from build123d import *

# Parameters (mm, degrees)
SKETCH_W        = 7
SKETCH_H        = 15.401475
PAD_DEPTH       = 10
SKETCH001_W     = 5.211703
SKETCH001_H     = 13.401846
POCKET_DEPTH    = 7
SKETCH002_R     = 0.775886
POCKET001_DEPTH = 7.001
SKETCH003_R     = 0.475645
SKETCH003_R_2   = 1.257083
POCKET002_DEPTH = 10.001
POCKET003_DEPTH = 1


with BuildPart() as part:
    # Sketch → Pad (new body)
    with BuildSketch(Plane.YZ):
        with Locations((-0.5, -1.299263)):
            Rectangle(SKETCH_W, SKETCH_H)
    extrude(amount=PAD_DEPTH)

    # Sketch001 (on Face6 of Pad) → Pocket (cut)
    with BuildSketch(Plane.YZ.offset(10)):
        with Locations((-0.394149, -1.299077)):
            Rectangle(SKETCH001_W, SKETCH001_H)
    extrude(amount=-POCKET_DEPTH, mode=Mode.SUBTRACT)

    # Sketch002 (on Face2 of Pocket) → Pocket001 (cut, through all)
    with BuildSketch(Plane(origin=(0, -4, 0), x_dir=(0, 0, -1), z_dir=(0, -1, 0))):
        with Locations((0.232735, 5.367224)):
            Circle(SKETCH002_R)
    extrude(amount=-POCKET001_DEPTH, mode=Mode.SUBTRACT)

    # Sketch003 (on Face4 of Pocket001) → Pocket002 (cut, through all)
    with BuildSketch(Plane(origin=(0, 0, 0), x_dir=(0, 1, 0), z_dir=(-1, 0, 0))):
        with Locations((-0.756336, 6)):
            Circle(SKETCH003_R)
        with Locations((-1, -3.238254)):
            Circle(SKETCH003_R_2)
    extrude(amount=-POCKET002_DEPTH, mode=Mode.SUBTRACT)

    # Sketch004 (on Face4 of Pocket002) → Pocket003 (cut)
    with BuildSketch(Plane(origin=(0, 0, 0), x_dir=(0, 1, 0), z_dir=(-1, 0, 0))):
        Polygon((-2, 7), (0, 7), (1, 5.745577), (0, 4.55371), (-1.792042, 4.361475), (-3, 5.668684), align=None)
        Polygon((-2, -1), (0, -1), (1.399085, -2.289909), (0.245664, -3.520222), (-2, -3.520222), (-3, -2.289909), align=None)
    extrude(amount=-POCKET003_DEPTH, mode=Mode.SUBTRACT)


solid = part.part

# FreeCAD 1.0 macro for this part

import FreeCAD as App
import Part
import Sketcher

V = App.Vector


def add_polygon(sketch, points):
    """Adds a closed chain of lines whose ends are joined by coincident constraints."""
    first, n = sketch.GeometryCount, len(points)
    for a, b in zip(points, points[1:] + points[:1]):
        sketch.addGeometry(Part.LineSegment(App.Vector(*a, 0), App.Vector(*b, 0)), False)
    for i in range(n):
        sketch.addConstraint(Sketcher.Constraint("Coincident", first + i, 2, first + (i + 1) % n, 1))

doc = App.newDocument("Part")
body = doc.addObject("PartDesign::Body", "Body")

# Sketch on YZ plane
sketch1 = body.newObject("Sketcher::SketchObject", "Sketch")
sketch1.AttachmentSupport = (doc.getObject("YZ_Plane"), [""])
sketch1.MapMode = "FlatFace"
add_polygon(sketch1, [(-4, 6.401474), (-4, -9.000001), (3, -9.000001), (3, 6.401474)])  # lines 0-3
sketch1.addConstraint([
    Sketcher.Constraint("Vertical", 0),
    Sketcher.Constraint("Horizontal", 1),
    Sketcher.Constraint("Vertical", 2),
    Sketcher.Constraint("Horizontal", 3),
    Sketcher.Constraint("DistanceX", 1, 1, 1, 2, 7.0),
    Sketcher.Constraint("DistanceX", 0, 2, -1, 1, 4.0),
    Sketcher.Constraint("DistanceY", 0, 2, -1, 1, 9.000001),
    Sketcher.Constraint("DistanceY", 0, 2, 0, 1, 15.401475),
])
pad1 = body.newObject("PartDesign::Pad", "Pad")
pad1.Profile = sketch1
pad1.Length = 10

# Sketch on YZ plane
sketch2 = body.newObject("Sketcher::SketchObject", "Sketch001")
sketch2.AttachmentSupport = (doc.getObject("YZ_Plane"), [""])
sketch2.MapMode = "FlatFace"
sketch2.AttachmentOffset = App.Placement(V(0, 0, 10), App.Rotation())
add_polygon(sketch2, [(-3.000001, 5.401846), (-3.000001, -8), (2.211702, -8), (2.211702, 5.401846)])  # lines 0-3
sketch2.addConstraint([
    Sketcher.Constraint("Vertical", 0),
    Sketcher.Constraint("Horizontal", 1),
    Sketcher.Constraint("Vertical", 2),
    Sketcher.Constraint("Horizontal", 3),
    Sketcher.Constraint("DistanceX", 0, 2, -1, 1, 3.000001),
    Sketcher.Constraint("DistanceY", 0, 2, -1, 1, 8.0),
    Sketcher.Constraint("DistanceX", 1, 1, 1, 2, 5.211703),
    Sketcher.Constraint("DistanceY", 0, 2, 0, 1, 13.401846),
])
pocket1 = body.newObject("PartDesign::Pocket", "Pocket")
pocket1.Profile = sketch2
pocket1.Length = 7

# Sketch on XZ plane
sketch3 = body.newObject("Sketcher::SketchObject", "Sketch002")
sketch3.AttachmentSupport = (doc.getObject("XZ_Plane"), [""])
sketch3.MapMode = "FlatFace"
sketch3.AttachmentOffset = App.Placement(V(0, 0, 4), App.Rotation())
sketch3.addGeometry(Part.Circle(V(5.367224, -0.232735, 0), V(0, 0, 1), 0.775886), False)
sketch3.addConstraint([
    Sketcher.Constraint("Diameter", 0, 1.551772),
    Sketcher.Constraint("DistanceX", -1, 1, 0, 3, 5.367224),
    Sketcher.Constraint("DistanceY", 0, 3, -1, 1, 0.232735),
])
pocket2 = body.newObject("PartDesign::Pocket", "Pocket001")
pocket2.Profile = sketch3
pocket2.Type = "ThroughAll"

# Sketch on YZ plane
sketch4 = body.newObject("Sketcher::SketchObject", "Sketch003")
sketch4.AttachmentSupport = (doc.getObject("YZ_Plane"), [""])
sketch4.MapMode = "FlatFace"
sketch4.addGeometry([
    Part.Circle(V(-0.756336, -6, 0), V(0, 0, 1), 0.475645),
    Part.Circle(V(-1, 3.238254, 0), V(0, 0, 1), 1.257083),
], False)
sketch4.addConstraint([
    Sketcher.Constraint("DistanceY", 0, 3, -1, 1, 6.0),
    Sketcher.Constraint("DistanceX", 1, 3, -1, 1, 1.0),
    Sketcher.Constraint("Diameter", 0, 0.95129),
    Sketcher.Constraint("Diameter", 1, 2.514166),
    Sketcher.Constraint("DistanceX", 0, 3, -1, 1, 0.756336),
    Sketcher.Constraint("DistanceY", -1, 1, 1, 3, 3.238254),
])
pocket3 = body.newObject("PartDesign::Pocket", "Pocket002")
pocket3.Profile = sketch4
pocket3.Type = "ThroughAll"
pocket3.Reversed = True

# Sketch on YZ plane
sketch5 = body.newObject("Sketcher::SketchObject", "Sketch004")
sketch5.AttachmentSupport = (doc.getObject("YZ_Plane"), [""])
sketch5.MapMode = "FlatFace"
add_polygon(sketch5, [(0, -7), (-2, -7), (-3, -5.668684), (-1.792042, -4.361475), (0, -4.55371), (1, -5.745577)])  # lines 0-5
add_polygon(sketch5, [(0, 1), (-2, 1), (-3, 2.289909), (-2, 3.520222), (0.245664, 3.520222), (1.399085, 2.289909)])  # lines 6-11
sketch5.addConstraint([
    Sketcher.Constraint("Horizontal", 0),
    Sketcher.Constraint("Horizontal", 6),
    Sketcher.Constraint("Horizontal", 9),
    Sketcher.Constraint("PointOnObject", 3, 2, -2),
    Sketcher.Constraint("PointOnObject", 5, 2, -2),
    Sketcher.Constraint("PointOnObject", 11, 2, -2),
    Sketcher.Constraint("Horizontal", 7, 2, 10, 2),
    Sketcher.Constraint("Vertical", 0, 2, 6, 2),
    Sketcher.Constraint("Vertical", 1, 2, 7, 2),
    Sketcher.Constraint("Vertical", 6, 2, 8, 2),
    Sketcher.Constraint("DistanceX", 0, 2, 0, 1, 2.0),
    Sketcher.Constraint("DistanceY", 0, 2, -1, 1, 7.0),
    Sketcher.Constraint("DistanceX", 1, 2, -1, 1, 3.0),
    Sketcher.Constraint("DistanceX", -1, 1, 4, 2, 1.0),
    Sketcher.Constraint("DistanceY", -1, 1, 6, 2, 1.0),
    Sketcher.Constraint("DistanceY", 4, 2, 2, 2, 1.384102),
    Sketcher.Constraint("Distance", 4, 1.555811),
    Sketcher.Constraint("Distance", 10, 1.686431),
    Sketcher.Constraint("DistanceX", 9, 1, 9, 2, 2.245664),
    Sketcher.Constraint("DistanceX", 2, 2, -1, 1, 1.792042),
    Sketcher.Constraint("DistanceY", 3, 2, -1, 1, 4.55371),
    Sketcher.Constraint("DistanceY", -1, 1, 7, 2, 2.289909),
    Sketcher.Constraint("DistanceY", -1, 1, 8, 2, 3.520222),
    Sketcher.Constraint("DistanceY", 1, 2, 2, 2, 1.307209),
])
pocket4 = body.newObject("PartDesign::Pocket", "Pocket003")
pocket4.Profile = sketch5
pocket4.Length = 1
pocket4.Reversed = True

doc.recompute()
